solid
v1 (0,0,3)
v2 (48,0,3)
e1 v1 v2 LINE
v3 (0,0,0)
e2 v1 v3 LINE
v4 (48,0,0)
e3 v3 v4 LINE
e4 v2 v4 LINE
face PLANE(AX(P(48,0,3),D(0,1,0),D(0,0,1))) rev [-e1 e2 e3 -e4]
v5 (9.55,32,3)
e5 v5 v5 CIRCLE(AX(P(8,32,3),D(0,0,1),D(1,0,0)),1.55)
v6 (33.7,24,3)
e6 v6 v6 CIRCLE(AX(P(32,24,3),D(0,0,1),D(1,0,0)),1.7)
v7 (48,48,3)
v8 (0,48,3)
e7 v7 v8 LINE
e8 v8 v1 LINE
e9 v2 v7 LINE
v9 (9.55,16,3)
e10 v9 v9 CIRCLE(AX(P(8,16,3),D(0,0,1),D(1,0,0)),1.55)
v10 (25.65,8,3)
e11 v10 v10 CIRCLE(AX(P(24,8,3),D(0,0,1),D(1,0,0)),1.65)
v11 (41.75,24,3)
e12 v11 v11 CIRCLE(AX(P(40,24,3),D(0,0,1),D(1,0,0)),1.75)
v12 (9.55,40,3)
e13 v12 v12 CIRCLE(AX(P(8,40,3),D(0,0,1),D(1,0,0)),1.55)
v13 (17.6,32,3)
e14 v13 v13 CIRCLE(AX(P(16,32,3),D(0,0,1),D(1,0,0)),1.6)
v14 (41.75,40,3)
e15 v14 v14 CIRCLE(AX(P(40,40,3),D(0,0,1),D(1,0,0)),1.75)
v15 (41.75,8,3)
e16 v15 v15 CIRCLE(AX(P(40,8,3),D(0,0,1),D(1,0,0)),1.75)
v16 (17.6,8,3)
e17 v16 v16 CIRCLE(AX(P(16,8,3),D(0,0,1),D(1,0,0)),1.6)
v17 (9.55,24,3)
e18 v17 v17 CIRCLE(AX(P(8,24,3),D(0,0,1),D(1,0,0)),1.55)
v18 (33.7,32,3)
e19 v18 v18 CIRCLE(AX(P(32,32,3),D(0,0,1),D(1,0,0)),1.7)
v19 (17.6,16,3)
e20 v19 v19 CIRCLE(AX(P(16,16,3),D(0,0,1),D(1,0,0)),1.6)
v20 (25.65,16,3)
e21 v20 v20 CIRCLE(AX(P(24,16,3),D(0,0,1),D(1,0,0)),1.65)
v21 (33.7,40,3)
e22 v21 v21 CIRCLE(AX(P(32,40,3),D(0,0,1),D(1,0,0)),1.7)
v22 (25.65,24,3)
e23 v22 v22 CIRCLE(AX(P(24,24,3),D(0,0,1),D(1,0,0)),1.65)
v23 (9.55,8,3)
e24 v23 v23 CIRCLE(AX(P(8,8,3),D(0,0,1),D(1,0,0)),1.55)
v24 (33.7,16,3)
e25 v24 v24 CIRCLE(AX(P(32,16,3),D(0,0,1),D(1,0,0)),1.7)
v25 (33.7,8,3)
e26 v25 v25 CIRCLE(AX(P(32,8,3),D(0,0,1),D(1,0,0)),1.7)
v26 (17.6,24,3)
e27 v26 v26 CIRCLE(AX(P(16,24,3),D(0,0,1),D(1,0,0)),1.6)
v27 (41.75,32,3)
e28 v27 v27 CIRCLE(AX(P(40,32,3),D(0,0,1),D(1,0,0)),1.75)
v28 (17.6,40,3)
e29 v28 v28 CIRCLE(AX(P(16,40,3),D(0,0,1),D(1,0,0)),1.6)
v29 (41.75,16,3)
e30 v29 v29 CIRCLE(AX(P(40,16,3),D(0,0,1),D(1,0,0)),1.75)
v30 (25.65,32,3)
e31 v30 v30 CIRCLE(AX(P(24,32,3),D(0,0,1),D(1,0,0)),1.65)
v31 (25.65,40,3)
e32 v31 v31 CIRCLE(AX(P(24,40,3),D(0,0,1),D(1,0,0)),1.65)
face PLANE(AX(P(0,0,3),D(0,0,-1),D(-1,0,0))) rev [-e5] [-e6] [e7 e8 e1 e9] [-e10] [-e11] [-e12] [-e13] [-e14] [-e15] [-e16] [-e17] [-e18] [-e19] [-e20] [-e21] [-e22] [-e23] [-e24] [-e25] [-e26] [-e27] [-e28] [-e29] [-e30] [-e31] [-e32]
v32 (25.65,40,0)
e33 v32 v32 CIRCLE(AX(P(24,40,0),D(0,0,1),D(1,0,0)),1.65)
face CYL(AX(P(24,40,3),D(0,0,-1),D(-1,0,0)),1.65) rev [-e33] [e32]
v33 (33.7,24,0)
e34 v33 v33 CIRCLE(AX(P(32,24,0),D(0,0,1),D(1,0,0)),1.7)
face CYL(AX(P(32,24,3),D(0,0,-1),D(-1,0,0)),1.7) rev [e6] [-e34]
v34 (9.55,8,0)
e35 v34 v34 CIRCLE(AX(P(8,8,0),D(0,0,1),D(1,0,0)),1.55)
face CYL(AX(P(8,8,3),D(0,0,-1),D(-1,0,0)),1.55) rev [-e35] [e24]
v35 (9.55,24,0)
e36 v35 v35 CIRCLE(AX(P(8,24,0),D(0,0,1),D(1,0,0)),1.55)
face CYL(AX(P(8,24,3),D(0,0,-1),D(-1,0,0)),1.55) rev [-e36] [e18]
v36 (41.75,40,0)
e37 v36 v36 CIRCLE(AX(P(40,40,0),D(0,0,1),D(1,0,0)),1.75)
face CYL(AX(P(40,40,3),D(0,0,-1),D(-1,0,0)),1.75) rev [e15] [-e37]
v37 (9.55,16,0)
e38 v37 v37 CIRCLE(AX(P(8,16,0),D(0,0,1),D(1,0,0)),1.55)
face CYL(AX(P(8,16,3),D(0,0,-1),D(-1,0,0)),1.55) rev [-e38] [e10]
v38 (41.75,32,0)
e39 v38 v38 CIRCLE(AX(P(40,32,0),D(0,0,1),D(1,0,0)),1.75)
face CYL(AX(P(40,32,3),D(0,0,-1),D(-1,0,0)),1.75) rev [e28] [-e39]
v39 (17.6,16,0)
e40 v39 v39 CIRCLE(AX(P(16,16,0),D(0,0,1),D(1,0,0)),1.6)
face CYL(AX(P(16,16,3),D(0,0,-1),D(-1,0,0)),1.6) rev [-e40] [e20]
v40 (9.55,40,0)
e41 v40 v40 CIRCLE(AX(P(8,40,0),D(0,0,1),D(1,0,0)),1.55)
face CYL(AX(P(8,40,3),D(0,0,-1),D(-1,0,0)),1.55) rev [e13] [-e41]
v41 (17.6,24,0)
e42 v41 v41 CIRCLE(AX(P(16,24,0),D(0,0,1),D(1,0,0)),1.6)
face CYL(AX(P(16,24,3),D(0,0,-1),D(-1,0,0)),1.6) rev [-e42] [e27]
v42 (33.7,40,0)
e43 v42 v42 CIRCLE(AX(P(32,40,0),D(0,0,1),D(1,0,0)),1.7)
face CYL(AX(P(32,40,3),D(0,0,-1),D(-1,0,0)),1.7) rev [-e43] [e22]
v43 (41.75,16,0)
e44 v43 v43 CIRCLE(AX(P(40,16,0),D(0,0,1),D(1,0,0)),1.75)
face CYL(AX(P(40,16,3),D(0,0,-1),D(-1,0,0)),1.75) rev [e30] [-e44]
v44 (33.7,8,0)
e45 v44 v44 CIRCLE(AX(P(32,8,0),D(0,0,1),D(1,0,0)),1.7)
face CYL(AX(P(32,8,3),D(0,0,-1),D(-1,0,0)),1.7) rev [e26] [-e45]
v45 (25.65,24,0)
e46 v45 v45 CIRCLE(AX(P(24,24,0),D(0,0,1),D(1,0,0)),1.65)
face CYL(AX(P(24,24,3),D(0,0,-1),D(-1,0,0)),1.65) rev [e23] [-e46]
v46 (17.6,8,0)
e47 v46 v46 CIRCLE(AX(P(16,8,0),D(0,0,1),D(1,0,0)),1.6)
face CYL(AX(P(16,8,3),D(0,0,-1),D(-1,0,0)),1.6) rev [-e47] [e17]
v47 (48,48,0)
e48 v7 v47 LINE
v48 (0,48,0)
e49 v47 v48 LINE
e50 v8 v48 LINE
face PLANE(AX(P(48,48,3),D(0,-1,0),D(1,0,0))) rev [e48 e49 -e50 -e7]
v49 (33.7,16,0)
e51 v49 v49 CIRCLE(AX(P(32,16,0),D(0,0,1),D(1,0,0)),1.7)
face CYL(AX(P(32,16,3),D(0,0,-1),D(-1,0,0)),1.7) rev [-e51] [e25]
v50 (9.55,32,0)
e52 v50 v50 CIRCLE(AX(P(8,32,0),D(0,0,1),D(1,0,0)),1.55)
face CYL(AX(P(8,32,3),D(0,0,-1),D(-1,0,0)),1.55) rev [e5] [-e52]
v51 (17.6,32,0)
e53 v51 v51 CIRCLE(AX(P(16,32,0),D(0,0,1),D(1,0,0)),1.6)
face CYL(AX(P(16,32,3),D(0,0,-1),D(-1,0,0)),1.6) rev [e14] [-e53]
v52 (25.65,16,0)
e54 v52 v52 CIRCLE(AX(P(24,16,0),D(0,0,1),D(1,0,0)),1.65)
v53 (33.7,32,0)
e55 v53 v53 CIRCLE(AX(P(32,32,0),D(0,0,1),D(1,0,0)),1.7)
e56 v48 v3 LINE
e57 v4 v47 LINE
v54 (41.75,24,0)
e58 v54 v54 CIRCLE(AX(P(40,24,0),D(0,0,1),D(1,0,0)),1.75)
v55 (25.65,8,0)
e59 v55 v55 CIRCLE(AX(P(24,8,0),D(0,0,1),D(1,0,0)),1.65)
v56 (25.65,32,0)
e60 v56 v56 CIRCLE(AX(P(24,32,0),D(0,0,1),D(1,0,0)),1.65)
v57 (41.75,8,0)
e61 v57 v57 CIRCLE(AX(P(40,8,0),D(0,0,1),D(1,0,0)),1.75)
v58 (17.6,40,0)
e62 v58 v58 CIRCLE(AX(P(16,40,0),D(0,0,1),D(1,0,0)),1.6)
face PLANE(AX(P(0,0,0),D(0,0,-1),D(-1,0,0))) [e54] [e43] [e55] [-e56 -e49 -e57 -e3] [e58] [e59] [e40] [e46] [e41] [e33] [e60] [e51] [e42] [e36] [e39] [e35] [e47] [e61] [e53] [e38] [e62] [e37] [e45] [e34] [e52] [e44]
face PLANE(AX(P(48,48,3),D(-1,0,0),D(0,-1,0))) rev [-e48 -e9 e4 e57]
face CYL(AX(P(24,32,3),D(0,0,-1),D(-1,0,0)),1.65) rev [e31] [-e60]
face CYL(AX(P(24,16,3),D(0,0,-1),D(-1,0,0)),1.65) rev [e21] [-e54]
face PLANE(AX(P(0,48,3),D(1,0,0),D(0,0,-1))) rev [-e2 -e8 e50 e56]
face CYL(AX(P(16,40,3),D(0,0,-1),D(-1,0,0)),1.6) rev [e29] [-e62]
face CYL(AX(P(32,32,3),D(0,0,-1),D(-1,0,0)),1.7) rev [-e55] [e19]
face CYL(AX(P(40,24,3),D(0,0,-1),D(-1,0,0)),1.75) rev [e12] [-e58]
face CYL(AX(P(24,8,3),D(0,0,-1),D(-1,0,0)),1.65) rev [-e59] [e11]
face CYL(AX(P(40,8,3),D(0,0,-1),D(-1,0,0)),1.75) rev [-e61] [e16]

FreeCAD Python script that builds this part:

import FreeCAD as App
import Part
import Sketcher


def add_polygon(sketch, points):
    """Adds a closed chain of lines whose ends are joined by coincident constraints."""
    first, n = sketch.GeometryCount, len(points)
    for a, b in zip(points, points[1:] + points[:1]):
        sketch.addGeometry(Part.LineSegment(App.Vector(*a, 0), App.Vector(*b, 0)), False)
    for i in range(n):
        sketch.addConstraint(Sketcher.Constraint("Coincident", first + i, 2, first + (i + 1) % n, 1))

doc = App.newDocument("Part")
body = doc.addObject("PartDesign::Body", "Body")

sketch1 = body.newObject("Sketcher::SketchObject", "Sketch")
sketch1.AttachmentSupport = (doc.getObject("XY_Plane"), [""])
sketch1.MapMode = "FlatFace"
add_polygon(sketch1, [(0, 48), (0, 0), (48, 0), (48, 48)])
sketch1.addGeometry(Part.Circle(App.Vector(8, 8, 0), App.Vector(0, 0, 1), 1.6), False)
sketch1.addGeometry(Part.Circle(App.Vector(16, 8, 0), App.Vector(0, 0, 1), 1.6), False)
sketch1.addGeometry(Part.Circle(App.Vector(24, 8, 0), App.Vector(0, 0, 1), 1.6), False)
sketch1.addGeometry(Part.Circle(App.Vector(8, 16, 0), App.Vector(0, 0, 1), 1.6), False)
sketch1.addGeometry(Part.Circle(App.Vector(16, 16, 0), App.Vector(0, 0, 1), 1.6), False)
sketch1.addGeometry(Part.Circle(App.Vector(24, 16, 0), App.Vector(0, 0, 1), 1.6), False)
sketch1.addGeometry(Part.Circle(App.Vector(32, 8, 0), App.Vector(0, 0, 1), 1.7), False)
sketch1.addGeometry(Part.Circle(App.Vector(40, 8, 0), App.Vector(0, 0, 1), 1.8), False)
sketch1.addGeometry(Part.Circle(App.Vector(32, 16, 0), App.Vector(0, 0, 1), 1.7), False)
sketch1.addGeometry(Part.Circle(App.Vector(40, 16, 0), App.Vector(0, 0, 1), 1.8), False)
sketch1.addGeometry(Part.Circle(App.Vector(8, 24, 0), App.Vector(0, 0, 1), 1.6), False)
sketch1.addGeometry(Part.Circle(App.Vector(8, 32, 0), App.Vector(0, 0, 1), 1.6), False)
sketch1.addGeometry(Part.Circle(App.Vector(16, 24, 0), App.Vector(0, 0, 1), 1.6), False)
sketch1.addGeometry(Part.Circle(App.Vector(24, 24, 0), App.Vector(0, 0, 1), 1.6), False)
sketch1.addGeometry(Part.Circle(App.Vector(16, 32, 0), App.Vector(0, 0, 1), 1.6), False)
sketch1.addGeometry(Part.Circle(App.Vector(24, 32, 0), App.Vector(0, 0, 1), 1.6), False)
sketch1.addGeometry(Part.Circle(App.Vector(8, 40, 0), App.Vector(0, 0, 1), 1.6), False)
sketch1.addGeometry(Part.Circle(App.Vector(16, 40, 0), App.Vector(0, 0, 1), 1.6), False)
sketch1.addGeometry(Part.Circle(App.Vector(24, 40, 0), App.Vector(0, 0, 1), 1.6), False)
sketch1.addGeometry(Part.Circle(App.Vector(32, 24, 0), App.Vector(0, 0, 1), 1.7), False)
sketch1.addGeometry(Part.Circle(App.Vector(32, 32, 0), App.Vector(0, 0, 1), 1.7), False)
sketch1.addGeometry(Part.Circle(App.Vector(40, 24, 0), App.Vector(0, 0, 1), 1.8), False)
sketch1.addGeometry(Part.Circle(App.Vector(40, 32, 0), App.Vector(0, 0, 1), 1.8), False)
sketch1.addGeometry(Part.Circle(App.Vector(32, 40, 0), App.Vector(0, 0, 1), 1.7), False)
sketch1.addGeometry(Part.Circle(App.Vector(40, 40, 0), App.Vector(0, 0, 1), 1.8), False)
sketch1.addConstraint([
    Sketcher.Constraint("Vertical", 0),
    Sketcher.Constraint("Horizontal", 1),
    Sketcher.Constraint("Vertical", 2),
    Sketcher.Constraint("Horizontal", 3),
    Sketcher.Constraint("Coincident", 0, 2, -1, 1),
    Sketcher.Constraint("Equal", 4, 7),
    Sketcher.Constraint("Equal", 5, 8),
    Sketcher.Constraint("Equal", 6, 9),
    Sketcher.Constraint("Equal", 10, 12),
    Sketcher.Constraint("Equal", 11, 13),
    Sketcher.Constraint("Equal", 7, 14),
    Sketcher.Constraint("Equal", 14, 15),
    Sketcher.Constraint("Equal", 8, 16),
    Sketcher.Constraint("Equal", 9, 17),
    Sketcher.Constraint("Equal", 16, 18),
    Sketcher.Constraint("Equal", 17, 19),
    Sketcher.Constraint("Equal", 15, 20),
    Sketcher.Constraint("Equal", 18, 21),
    Sketcher.Constraint("Equal", 19, 22),
    Sketcher.Constraint("Equal", 12, 23),
    Sketcher.Constraint("Equal", 23, 24),
    Sketcher.Constraint("Equal", 13, 25),
    Sketcher.Constraint("Equal", 25, 26),
    Sketcher.Constraint("Equal", 24, 27),
    Sketcher.Constraint("Equal", 26, 28),
    Sketcher.Constraint("Horizontal", 4, 3, 5, 3),
    Sketcher.Constraint("Horizontal", 5, 3, 6, 3),
    Sketcher.Constraint("Horizontal", 7, 3, 8, 3),
    Sketcher.Constraint("Horizontal", 8, 3, 9, 3),
    Sketcher.Constraint("Horizontal", 6, 3, 10, 3),
    Sketcher.Constraint("Horizontal", 10, 3, 11, 3),
    Sketcher.Constraint("Horizontal", 9, 3, 12, 3),
    Sketcher.Constraint("Horizontal", 12, 3, 13, 3),
    Sketcher.Constraint("Horizontal", 14, 3, 16, 3),
    Sketcher.Constraint("Horizontal", 16, 3, 17, 3),
    Sketcher.Constraint("Horizontal", 15, 3, 18, 3),
    Sketcher.Constraint("Horizontal", 18, 3, 19, 3),
    Sketcher.Constraint("Horizontal", 20, 3, 21, 3),
    Sketcher.Constraint("Horizontal", 21, 3, 22, 3),
    Sketcher.Constraint("Horizontal", 17, 3, 23, 3),
    Sketcher.Constraint("Horizontal", 19, 3, 24, 3),
    Sketcher.Constraint("Horizontal", 23, 3, 25, 3),
    Sketcher.Constraint("Horizontal", 24, 3, 26, 3),
    Sketcher.Constraint("Horizontal", 22, 3, 27, 3),
    Sketcher.Constraint("Horizontal", 27, 3, 28, 3),
    Sketcher.Constraint("Vertical", 4, 3, 7, 3),
    Sketcher.Constraint("Vertical", 5, 3, 8, 3),
    Sketcher.Constraint("Vertical", 6, 3, 9, 3),
    Sketcher.Constraint("Vertical", 10, 3, 12, 3),
    Sketcher.Constraint("Vertical", 11, 3, 13, 3),
    Sketcher.Constraint("Vertical", 7, 3, 14, 3),
    Sketcher.Constraint("Vertical", 14, 3, 15, 3),
    Sketcher.Constraint("Vertical", 8, 3, 16, 3),
    Sketcher.Constraint("Vertical", 9, 3, 17, 3),
    Sketcher.Constraint("Vertical", 16, 3, 18, 3),
    Sketcher.Constraint("Vertical", 17, 3, 19, 3),
    Sketcher.Constraint("Vertical", 15, 3, 20, 3),
    Sketcher.Constraint("Vertical", 18, 3, 21, 3),
    Sketcher.Constraint("Vertical", 19, 3, 22, 3),
    Sketcher.Constraint("Vertical", 12, 3, 23, 3),
    Sketcher.Constraint("Vertical", 23, 3, 24, 3),
    Sketcher.Constraint("Vertical", 13, 3, 25, 3),
    Sketcher.Constraint("Vertical", 25, 3, 26, 3),
    Sketcher.Constraint("Vertical", 24, 3, 27, 3),
    Sketcher.Constraint("Vertical", 26, 3, 28, 3),
    Sketcher.Constraint("Equal", 3, 0),
    Sketcher.Constraint("Diameter", 4, 3.1),
    Sketcher.Constraint("Diameter", 5, 3.2),
    Sketcher.Constraint("Diameter", 6, 3.3),
    Sketcher.Constraint("Diameter", 10, 3.4),
    Sketcher.Constraint("Diameter", 11, 3.5),
    Sketcher.Constraint("DistanceX", 1, 1, 1, 2, 48.0),
    Sketcher.Constraint("DistanceX", -1, 1, 4, 3, 8.0),
    Sketcher.Constraint("DistanceY", -1, 1, 4, 3, 8.0),
    Sketcher.Constraint("DistanceX", -1, 1, 5, 3, 16.0),
    Sketcher.Constraint("DistanceX", -1, 1, 6, 3, 24.0),
    Sketcher.Constraint("DistanceY", -1, 1, 7, 3, 16.0),
    Sketcher.Constraint("DistanceX", -1, 1, 10, 3, 32.0),
    Sketcher.Constraint("DistanceX", -1, 1, 11, 3, 40.0),
    Sketcher.Constraint("DistanceY", -1, 1, 14, 3, 24.0),
    Sketcher.Constraint("DistanceY", -1, 1, 15, 3, 32.0),
    Sketcher.Constraint("DistanceY", -1, 1, 20, 3, 40.0),
])
pad1 = body.newObject("PartDesign::Pad", "Pad")
pad1.Profile = sketch1
pad1.Length = 3

doc.recompute()
